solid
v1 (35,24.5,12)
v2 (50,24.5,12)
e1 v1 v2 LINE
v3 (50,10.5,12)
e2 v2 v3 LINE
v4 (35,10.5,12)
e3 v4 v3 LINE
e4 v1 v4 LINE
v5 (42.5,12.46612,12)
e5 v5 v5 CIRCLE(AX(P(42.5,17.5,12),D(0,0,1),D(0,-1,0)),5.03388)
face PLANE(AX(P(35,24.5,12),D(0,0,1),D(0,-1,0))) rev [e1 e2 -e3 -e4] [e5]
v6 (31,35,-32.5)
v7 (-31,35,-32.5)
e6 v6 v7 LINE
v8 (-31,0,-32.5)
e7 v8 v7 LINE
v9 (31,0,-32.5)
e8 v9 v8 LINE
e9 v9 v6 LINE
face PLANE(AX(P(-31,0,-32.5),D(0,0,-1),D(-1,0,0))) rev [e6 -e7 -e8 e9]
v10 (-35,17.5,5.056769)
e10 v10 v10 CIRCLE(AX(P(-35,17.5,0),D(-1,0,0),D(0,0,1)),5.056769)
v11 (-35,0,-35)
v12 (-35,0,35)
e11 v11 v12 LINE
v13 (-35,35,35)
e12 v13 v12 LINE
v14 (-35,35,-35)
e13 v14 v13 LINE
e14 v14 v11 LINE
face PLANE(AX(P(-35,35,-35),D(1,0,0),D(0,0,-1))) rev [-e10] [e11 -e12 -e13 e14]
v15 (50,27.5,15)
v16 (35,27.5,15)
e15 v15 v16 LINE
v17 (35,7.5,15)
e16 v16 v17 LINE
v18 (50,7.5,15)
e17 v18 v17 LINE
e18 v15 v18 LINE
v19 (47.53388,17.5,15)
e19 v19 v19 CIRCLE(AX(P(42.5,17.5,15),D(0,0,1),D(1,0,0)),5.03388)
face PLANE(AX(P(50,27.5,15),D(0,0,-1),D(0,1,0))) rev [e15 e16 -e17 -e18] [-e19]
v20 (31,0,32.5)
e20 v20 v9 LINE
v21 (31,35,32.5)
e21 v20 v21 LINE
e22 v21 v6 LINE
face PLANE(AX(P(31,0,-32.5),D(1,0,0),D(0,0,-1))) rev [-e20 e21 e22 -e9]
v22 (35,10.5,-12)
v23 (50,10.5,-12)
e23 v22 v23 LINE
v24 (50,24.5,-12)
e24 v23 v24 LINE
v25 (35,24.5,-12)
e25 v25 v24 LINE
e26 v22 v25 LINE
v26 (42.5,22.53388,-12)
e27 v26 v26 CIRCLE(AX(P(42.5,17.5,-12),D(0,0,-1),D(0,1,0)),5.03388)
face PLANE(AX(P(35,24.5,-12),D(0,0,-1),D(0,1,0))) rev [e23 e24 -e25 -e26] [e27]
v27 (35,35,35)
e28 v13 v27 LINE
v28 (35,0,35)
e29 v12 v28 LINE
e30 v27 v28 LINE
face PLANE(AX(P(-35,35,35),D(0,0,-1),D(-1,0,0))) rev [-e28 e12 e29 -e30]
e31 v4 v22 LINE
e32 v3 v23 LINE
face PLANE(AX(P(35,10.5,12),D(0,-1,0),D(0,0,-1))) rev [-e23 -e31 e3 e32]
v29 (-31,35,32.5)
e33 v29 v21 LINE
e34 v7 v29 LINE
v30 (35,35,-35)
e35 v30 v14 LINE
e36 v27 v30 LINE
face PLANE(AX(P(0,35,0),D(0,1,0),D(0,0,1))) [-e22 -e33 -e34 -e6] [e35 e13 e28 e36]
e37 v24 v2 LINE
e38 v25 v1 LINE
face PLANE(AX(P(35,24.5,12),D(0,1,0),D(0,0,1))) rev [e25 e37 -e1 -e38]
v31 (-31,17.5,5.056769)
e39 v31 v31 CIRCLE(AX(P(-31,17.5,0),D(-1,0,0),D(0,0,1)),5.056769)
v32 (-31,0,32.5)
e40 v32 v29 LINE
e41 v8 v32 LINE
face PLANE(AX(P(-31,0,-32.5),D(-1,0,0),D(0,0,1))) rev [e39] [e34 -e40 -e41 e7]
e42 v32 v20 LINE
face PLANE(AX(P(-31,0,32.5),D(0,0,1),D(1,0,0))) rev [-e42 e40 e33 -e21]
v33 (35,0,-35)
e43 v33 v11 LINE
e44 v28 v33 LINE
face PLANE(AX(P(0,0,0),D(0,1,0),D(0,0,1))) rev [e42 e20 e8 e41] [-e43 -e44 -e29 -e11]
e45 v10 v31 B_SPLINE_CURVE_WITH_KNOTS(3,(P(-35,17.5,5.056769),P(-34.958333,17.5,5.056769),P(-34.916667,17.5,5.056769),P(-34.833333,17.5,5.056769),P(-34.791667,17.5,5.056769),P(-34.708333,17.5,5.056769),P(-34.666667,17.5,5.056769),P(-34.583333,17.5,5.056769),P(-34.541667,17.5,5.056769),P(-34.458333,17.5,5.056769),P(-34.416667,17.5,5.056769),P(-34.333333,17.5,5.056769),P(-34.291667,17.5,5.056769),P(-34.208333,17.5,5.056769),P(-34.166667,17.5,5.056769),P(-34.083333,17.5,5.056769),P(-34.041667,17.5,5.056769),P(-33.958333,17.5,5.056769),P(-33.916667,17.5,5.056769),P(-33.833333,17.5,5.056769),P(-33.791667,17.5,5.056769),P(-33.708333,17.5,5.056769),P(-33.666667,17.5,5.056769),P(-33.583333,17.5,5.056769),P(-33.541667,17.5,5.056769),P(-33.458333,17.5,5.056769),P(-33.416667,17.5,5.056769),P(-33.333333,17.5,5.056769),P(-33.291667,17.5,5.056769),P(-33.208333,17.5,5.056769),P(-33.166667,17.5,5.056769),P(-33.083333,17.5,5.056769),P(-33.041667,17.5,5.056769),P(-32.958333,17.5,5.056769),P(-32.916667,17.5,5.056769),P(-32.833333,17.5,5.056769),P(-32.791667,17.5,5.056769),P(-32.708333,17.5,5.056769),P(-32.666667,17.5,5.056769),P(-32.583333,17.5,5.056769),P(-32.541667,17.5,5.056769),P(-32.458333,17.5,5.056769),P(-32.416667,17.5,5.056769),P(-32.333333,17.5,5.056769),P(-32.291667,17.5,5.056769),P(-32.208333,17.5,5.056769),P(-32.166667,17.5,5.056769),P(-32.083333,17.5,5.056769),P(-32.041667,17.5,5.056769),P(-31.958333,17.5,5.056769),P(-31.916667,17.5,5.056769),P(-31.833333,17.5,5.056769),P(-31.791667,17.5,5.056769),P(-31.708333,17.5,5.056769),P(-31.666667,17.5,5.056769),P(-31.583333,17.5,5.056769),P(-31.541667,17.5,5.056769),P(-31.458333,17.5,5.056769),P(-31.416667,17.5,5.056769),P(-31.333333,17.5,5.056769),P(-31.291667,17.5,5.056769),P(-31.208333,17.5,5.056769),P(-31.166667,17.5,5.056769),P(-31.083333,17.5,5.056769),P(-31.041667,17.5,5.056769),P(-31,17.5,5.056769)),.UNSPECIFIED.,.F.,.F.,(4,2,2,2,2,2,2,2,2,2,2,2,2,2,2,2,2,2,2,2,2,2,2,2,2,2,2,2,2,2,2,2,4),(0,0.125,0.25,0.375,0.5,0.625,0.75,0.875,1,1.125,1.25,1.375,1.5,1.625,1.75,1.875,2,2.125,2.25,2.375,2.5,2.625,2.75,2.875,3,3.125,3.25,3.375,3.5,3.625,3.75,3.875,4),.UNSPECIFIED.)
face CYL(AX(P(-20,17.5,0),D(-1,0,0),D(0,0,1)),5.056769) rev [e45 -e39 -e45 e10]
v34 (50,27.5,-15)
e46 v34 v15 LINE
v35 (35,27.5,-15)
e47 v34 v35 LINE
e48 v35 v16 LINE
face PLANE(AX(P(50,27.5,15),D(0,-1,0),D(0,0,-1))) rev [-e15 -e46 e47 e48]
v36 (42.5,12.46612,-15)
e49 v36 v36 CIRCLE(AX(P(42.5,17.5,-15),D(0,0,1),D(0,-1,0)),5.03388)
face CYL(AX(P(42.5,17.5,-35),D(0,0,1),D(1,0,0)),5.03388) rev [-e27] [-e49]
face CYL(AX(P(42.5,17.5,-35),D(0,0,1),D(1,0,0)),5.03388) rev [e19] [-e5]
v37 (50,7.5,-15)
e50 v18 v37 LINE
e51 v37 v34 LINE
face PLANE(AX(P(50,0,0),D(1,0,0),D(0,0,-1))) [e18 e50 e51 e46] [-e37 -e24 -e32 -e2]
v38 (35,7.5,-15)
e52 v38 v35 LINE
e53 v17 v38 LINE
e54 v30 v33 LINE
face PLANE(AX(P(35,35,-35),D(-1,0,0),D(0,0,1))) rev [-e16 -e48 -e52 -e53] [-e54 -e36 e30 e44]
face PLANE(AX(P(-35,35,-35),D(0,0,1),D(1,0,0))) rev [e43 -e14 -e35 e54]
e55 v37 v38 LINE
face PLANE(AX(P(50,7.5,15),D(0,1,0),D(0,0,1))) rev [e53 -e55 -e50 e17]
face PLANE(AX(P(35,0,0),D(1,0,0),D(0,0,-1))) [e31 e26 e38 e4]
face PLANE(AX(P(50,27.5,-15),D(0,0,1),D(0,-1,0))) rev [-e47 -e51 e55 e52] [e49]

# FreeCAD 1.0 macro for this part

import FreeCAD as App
import Part
import Sketcher
from FreeCAD import Vector


def add_polygon(sketch, points):
    """Adds a closed chain of lines whose ends are joined by coincident constraints."""
    first, n = sketch.GeometryCount, len(points)
    for a, b in zip(points, points[1:] + points[:1]):
        sketch.addGeometry(Part.LineSegment(App.Vector(*a, 0), App.Vector(*b, 0)), False)
    for i in range(n):
        sketch.addConstraint(Sketcher.Constraint("Coincident", first + i, 2, first + (i + 1) % n, 1))

doc = App.newDocument("Part")
body = doc.addObject("PartDesign::Body", "Body")

# Sketch on XZ plane
sketch1 = body.newObject("Sketcher::SketchObject", "Sketch")
sketch1.AttachmentSupport = (doc.getObject("XZ_Plane"), [""])
sketch1.MapMode = "FlatFace"
add_polygon(sketch1, [(-35, -35), (-35, 35), (35, 35), (35, -35)])  # lines 0-3
sketch1.addConstraint([
    Sketcher.Constraint("Vertical", 0),
    Sketcher.Constraint("Horizontal", 1),
    Sketcher.Constraint("Vertical", 2),
    Sketcher.Constraint("Horizontal", 3),
    Sketcher.Constraint("Symmetric", 0, 2, 2, 2, -1, 1),
    Sketcher.Constraint("Equal", 3, 0),
    Sketcher.Constraint("DistanceX", 1, 1, 1, 2, 70.0),
])
pad1 = body.newObject("PartDesign::Pad", "Pad")
pad1.Profile = sketch1
pad1.Length = 35
pad1.Reversed = True

# Sketch on XZ plane
sketch2 = body.newObject("Sketcher::SketchObject", "Sketch001")
sketch2.AttachmentSupport = (doc.getObject("XZ_Plane"), [""])
sketch2.MapMode = "FlatFace"
sketch2.AttachmentOffset = App.Placement(Vector(0, 0, -35), App.Rotation())
add_polygon(sketch2, [(-31, -32.5), (-31, 32.5), (31, 32.5), (31, -32.5)])  # lines 0-3
sketch2.addConstraint([
    Sketcher.Constraint("Vertical", 0),
    Sketcher.Constraint("Horizontal", 1),
    Sketcher.Constraint("Vertical", 2),
    Sketcher.Constraint("Horizontal", 3),
    Sketcher.Constraint("Symmetric", 0, 2, 2, 2, -1, 1),
    Sketcher.Constraint("DistanceX", 1, 1, 1, 2, 62.0),
    Sketcher.Constraint("DistanceY", 0, 1, 0, 2, 65.0),
])
pocket1 = body.newObject("PartDesign::Pocket", "Pocket")
pocket1.Profile = sketch2
pocket1.Type = "ThroughAll"
pocket1.Reversed = True

# Sketch on YZ plane
sketch3 = body.newObject("Sketcher::SketchObject", "Sketch002")
sketch3.AttachmentSupport = (doc.getObject("YZ_Plane"), [""])
sketch3.MapMode = "FlatFace"
sketch3.AttachmentOffset = App.Placement(Vector(0, 0, -35), App.Rotation())
sketch3.addGeometry(Part.Circle(Vector(17.5, 0, 0), Vector(0, 0, 1), 5.056769), False)
sketch3.addConstraint([
    Sketcher.Constraint("PointOnObject", 0, 3, -1),
    Sketcher.Constraint("DistanceX", -1, 1, 0, 3, 17.5),
    Sketcher.Constraint("Diameter", 0, 10.113538),
])
pocket2 = body.newObject("PartDesign::Pocket", "Pocket001")
pocket2.Profile = sketch3
pocket2.Length = 15
pocket2.Reversed = True

# Sketch on YZ plane
sketch4 = body.newObject("Sketcher::SketchObject", "Sketch003")
sketch4.AttachmentSupport = (doc.getObject("YZ_Plane"), [""])
sketch4.MapMode = "FlatFace"
sketch4.AttachmentOffset = App.Placement(Vector(0, 0, 35), App.Rotation())
add_polygon(sketch4, [(27.5, 15), (7.5, 15), (7.5, -15), (27.5, -15)])  # lines 0-3
sketch4.addConstraint([
    Sketcher.Constraint("Horizontal", 0),
    Sketcher.Constraint("Vertical", 1),
    Sketcher.Constraint("Horizontal", 2),
    Sketcher.Constraint("Vertical", 3),
    Sketcher.Constraint("DistanceX", 0, 2, 0, 1, 20.0),
    Sketcher.Constraint("DistanceY", 1, 2, 1, 1, 30.0),
    Sketcher.Constraint("DistanceY", -1, 1, 0, 2, 15.0),
    Sketcher.Constraint("DistanceX", -1, 1, 0, 2, 7.5),
])
pad2 = body.newObject("PartDesign::Pad", "Pad001")
pad2.Profile = sketch4
pad2.Length = 15

# Sketch on YZ plane
sketch5 = body.newObject("Sketcher::SketchObject", "Sketch004")
sketch5.AttachmentSupport = (doc.getObject("YZ_Plane"), [""])
sketch5.MapMode = "FlatFace"
sketch5.AttachmentOffset = App.Placement(Vector(0, 0, 50), App.Rotation())
add_polygon(sketch5, [(24.5, 12), (10.5, 12), (10.5, -12), (24.5, -12)])  # lines 0-3
sketch5.addConstraint([
    Sketcher.Constraint("Horizontal", 0),
    Sketcher.Constraint("Vertical", 1),
    Sketcher.Constraint("Horizontal", 2),
    Sketcher.Constraint("Vertical", 3),
    Sketcher.Constraint("DistanceX", 0, 2, 0, 1, 14.0),
    Sketcher.Constraint("DistanceY", 1, 2, 1, 1, 24.0),
    Sketcher.Constraint("DistanceY", -1, 1, 0, 2, 12.0),
    Sketcher.Constraint("DistanceX", -1, 1, 0, 2, 10.5),
])
pocket3 = body.newObject("PartDesign::Pocket", "Pocket002")
pocket3.Profile = sketch5
pocket3.Length = 15

# Sketch on XY plane
sketch6 = body.newObject("Sketcher::SketchObject", "Sketch005")
sketch6.AttachmentSupport = (doc.getObject("XY_Plane"), [""])
sketch6.MapMode = "FlatFace"
sketch6.AttachmentOffset = App.Placement(Vector(0, 0, 15), App.Rotation())
sketch6.addGeometry(Part.Circle(Vector(42.5, 17.5, 0), Vector(0, 0, 1), 5.03388), False)
sketch6.addConstraint([
    Sketcher.Constraint("DistanceX", -1, 1, 0, 3, 42.5),
    Sketcher.Constraint("DistanceY", -1, 1, 0, 3, 17.5),
    Sketcher.Constraint("Diameter", 0, 10.06776),
])
pocket4 = body.newObject("PartDesign::Pocket", "Pocket003")
pocket4.Profile = sketch6
pocket4.Type = "ThroughAll"

doc.recompute()
